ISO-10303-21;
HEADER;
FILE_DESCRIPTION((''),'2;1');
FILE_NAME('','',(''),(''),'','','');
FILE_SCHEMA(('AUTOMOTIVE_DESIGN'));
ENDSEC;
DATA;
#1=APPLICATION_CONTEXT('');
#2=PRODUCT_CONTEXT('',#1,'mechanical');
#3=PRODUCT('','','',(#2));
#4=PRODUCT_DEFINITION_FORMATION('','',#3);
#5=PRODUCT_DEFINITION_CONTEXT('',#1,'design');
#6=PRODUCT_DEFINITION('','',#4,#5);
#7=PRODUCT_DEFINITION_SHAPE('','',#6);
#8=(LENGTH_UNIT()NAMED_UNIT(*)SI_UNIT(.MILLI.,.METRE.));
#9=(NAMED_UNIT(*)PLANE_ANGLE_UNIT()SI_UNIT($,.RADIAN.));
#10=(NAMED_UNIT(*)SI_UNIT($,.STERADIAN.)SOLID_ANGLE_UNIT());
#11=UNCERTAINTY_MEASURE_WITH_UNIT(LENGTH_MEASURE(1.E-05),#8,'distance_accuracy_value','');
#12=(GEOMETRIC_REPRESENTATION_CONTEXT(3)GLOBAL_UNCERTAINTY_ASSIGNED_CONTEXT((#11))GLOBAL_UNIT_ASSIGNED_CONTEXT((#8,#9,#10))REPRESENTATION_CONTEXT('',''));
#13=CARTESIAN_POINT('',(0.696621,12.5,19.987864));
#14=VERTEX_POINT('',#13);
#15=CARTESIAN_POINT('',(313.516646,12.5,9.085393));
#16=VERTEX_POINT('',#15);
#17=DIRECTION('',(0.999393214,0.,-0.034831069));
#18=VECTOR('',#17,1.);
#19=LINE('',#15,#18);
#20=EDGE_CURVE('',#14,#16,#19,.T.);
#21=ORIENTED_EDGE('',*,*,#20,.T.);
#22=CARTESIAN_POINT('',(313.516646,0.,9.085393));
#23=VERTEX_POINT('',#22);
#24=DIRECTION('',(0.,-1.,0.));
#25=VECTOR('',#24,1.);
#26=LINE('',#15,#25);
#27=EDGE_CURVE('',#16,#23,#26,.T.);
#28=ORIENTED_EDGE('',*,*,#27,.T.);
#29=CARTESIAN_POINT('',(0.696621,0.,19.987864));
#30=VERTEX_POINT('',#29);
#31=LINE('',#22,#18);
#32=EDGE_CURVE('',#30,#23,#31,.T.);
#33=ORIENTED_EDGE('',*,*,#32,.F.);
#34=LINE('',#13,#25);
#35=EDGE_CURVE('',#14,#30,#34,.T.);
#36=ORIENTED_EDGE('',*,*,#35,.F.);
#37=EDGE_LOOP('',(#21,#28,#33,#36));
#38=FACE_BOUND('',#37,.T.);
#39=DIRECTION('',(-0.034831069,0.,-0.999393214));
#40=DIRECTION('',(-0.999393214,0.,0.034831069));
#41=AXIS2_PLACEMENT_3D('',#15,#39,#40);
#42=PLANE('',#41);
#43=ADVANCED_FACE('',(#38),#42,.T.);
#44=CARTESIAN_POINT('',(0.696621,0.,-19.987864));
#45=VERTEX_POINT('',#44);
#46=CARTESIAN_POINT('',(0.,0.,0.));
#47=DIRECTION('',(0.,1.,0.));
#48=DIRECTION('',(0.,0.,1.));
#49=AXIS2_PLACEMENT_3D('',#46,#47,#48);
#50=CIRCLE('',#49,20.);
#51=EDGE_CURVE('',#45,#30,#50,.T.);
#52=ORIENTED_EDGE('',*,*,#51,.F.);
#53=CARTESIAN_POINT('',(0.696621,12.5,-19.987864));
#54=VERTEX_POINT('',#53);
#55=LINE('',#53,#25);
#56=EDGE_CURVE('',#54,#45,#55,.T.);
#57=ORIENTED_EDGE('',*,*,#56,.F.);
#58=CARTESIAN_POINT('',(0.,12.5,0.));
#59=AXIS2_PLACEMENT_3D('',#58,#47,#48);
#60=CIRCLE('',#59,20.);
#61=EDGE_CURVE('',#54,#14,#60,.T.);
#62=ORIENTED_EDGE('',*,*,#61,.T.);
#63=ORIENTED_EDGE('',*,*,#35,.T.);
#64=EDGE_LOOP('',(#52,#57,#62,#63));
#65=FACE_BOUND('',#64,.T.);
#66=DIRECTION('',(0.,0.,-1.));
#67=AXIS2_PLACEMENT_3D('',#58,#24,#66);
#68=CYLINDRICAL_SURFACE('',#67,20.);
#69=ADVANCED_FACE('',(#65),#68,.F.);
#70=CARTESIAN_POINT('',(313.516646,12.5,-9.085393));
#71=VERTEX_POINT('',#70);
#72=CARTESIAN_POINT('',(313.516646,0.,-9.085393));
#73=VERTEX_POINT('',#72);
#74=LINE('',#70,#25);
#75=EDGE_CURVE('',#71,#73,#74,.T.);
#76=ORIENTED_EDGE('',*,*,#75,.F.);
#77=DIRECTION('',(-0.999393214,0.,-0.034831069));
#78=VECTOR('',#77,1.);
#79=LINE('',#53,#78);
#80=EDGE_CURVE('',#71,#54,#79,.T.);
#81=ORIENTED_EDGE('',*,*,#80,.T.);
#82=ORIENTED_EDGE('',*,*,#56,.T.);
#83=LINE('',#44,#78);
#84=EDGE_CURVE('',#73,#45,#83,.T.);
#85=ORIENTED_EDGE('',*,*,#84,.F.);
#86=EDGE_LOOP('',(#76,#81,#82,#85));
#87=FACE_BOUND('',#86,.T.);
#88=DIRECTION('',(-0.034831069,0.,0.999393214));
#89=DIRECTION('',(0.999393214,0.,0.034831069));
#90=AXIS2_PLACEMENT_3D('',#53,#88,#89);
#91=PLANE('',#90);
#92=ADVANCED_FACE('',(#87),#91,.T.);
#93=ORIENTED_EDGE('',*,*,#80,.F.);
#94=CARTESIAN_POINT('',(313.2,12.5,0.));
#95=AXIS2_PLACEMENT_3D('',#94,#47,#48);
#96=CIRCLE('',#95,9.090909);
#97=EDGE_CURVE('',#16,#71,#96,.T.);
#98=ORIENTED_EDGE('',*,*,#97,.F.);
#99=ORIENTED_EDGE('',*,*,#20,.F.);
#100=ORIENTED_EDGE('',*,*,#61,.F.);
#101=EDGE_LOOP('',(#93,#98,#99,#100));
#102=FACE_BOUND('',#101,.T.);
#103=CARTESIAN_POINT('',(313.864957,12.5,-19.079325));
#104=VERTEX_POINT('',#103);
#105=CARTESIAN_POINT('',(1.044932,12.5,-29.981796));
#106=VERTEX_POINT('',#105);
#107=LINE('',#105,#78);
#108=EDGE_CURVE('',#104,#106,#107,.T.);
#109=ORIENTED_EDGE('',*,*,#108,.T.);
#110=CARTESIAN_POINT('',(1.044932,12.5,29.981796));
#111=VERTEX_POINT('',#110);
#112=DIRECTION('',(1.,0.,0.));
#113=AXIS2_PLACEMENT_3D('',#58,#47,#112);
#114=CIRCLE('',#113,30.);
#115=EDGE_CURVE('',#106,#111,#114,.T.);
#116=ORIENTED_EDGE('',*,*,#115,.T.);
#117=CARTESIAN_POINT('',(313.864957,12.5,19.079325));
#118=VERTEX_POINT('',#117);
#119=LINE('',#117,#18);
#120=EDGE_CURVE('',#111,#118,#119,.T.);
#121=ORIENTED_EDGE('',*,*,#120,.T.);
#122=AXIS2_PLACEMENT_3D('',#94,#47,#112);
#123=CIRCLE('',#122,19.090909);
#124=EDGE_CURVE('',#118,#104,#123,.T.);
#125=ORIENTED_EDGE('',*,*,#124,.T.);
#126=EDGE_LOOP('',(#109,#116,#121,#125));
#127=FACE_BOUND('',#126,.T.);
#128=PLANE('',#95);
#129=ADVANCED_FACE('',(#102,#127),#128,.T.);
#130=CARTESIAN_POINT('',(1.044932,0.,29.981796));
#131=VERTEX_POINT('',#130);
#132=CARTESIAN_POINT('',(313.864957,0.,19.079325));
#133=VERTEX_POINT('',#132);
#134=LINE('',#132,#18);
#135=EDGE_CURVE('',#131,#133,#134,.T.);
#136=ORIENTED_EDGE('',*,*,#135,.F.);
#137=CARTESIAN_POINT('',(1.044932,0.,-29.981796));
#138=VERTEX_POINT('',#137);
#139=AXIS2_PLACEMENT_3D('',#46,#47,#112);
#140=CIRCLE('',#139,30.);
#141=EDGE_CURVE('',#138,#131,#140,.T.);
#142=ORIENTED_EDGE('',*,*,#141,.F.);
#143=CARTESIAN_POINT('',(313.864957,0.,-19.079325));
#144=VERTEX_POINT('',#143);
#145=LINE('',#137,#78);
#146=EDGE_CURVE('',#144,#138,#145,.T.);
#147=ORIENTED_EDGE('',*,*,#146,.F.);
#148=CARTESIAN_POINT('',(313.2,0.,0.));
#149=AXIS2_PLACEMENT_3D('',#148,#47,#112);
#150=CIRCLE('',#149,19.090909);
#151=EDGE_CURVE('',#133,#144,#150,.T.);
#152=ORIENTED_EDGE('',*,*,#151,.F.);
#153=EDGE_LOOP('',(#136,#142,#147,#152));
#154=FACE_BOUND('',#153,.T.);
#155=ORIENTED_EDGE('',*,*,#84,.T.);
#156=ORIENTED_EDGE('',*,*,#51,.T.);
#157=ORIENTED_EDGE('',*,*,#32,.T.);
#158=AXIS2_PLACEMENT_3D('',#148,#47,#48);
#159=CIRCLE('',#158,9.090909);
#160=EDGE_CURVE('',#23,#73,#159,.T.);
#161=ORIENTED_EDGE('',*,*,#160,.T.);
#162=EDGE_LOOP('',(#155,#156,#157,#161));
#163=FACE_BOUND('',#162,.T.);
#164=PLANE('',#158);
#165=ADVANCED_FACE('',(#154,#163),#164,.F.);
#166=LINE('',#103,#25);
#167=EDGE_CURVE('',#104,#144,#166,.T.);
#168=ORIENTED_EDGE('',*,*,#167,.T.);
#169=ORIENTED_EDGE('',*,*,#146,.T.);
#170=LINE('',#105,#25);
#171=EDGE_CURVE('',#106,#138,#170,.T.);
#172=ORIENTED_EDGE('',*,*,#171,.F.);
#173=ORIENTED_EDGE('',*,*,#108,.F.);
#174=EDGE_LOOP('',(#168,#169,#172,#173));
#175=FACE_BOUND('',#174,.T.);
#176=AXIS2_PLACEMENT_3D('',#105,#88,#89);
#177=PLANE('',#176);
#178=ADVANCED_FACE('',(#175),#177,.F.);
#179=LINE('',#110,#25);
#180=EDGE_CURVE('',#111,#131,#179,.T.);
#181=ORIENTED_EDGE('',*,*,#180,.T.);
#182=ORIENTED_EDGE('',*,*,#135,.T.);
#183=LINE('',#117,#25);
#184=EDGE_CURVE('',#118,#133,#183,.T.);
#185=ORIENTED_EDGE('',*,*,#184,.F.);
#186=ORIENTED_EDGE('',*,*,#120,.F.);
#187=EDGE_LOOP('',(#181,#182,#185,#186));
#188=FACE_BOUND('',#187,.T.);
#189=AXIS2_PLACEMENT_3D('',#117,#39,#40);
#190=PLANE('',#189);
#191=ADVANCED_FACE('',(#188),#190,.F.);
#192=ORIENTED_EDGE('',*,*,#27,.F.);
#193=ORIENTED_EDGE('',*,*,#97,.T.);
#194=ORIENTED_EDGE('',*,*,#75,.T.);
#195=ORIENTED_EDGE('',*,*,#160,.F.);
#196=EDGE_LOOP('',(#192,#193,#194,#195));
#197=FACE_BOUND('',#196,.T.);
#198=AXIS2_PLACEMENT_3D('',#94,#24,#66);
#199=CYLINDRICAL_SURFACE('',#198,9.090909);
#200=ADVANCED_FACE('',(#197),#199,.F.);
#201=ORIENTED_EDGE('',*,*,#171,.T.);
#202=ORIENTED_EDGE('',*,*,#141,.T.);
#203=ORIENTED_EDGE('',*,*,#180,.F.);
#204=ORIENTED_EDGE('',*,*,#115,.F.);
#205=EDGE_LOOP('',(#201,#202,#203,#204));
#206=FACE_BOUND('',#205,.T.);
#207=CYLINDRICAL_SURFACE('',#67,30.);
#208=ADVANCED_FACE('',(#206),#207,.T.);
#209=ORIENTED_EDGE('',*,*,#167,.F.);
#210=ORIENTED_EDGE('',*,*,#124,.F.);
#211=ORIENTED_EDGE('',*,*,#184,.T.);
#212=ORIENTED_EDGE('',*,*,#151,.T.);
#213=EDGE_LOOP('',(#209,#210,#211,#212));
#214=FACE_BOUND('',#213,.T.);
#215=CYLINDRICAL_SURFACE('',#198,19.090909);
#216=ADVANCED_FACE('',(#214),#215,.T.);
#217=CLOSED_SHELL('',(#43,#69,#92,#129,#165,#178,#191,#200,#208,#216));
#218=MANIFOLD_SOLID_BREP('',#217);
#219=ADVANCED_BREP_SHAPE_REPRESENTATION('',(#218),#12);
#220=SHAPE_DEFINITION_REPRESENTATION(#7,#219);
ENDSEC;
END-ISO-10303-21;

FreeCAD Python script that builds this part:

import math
import FreeCAD as App
import Part
import Sketcher
from FreeCAD import Vector
Q = App.Units.Quantity

doc = App.newDocument("Part")
body = doc.addObject("PartDesign::Body", "Body")

# Sketch on XZ plane
sketch1 = body.newObject("Sketcher::SketchObject", "Sketch")
sketch1.AttachmentSupport = (doc.getObject("XZ_Plane"), [""])
sketch1.MapMode = "FlatFace"
sketch1.addGeometry([
    Part.LineSegment(Vector(1, 30, 0), Vector(314, 19, 0)),  # 0
    Part.ArcOfCircle(Part.Circle(Vector(313, 0, 0), Vector(0, 0, 1), 19), math.radians(-88), math.radians(88)),  # 1
    Part.LineSegment(Vector(314, -19, 0), Vector(1, -30, 0)),  # 2
    Part.ArcOfCircle(Part.Circle(Vector(0, 0, 0), Vector(0, 0, 1), 30), math.radians(88), math.radians(272)),  # 3
    Part.LineSegment(Vector(314, 9, 0), Vector(1, 20, 0)),  # 4
    Part.ArcOfCircle(Part.Circle(Vector(0, 0, 0), Vector(0, 0, 1), 20), math.radians(88), math.radians(272)),  # 5
    Part.LineSegment(Vector(1, -20, 0), Vector(314, -9, 0)),  # 6
    Part.ArcOfCircle(Part.Circle(Vector(313, 0, 0), Vector(0, 0, 1), 9), math.radians(-88), math.radians(88)),  # 7
], False)
sketch1.addConstraint([
    Sketcher.Constraint("Tangent", 0, 2, 1, 2),
    Sketcher.Constraint("Tangent", 1, 1, 2, 1),
    Sketcher.Constraint("Tangent", 2, 2, 3, 2),
    Sketcher.Constraint("Tangent", 3, 1, 0, 1),
    Sketcher.Constraint("Tangent", 4, 2, 5, 1),
    Sketcher.Constraint("Tangent", 5, 2, 6, 1),
    Sketcher.Constraint("Tangent", 6, 2, 7, 1),
    Sketcher.Constraint("Tangent", 7, 2, 4, 1),
    Sketcher.Constraint("Coincident", 3, 3, -1, 1),
    Sketcher.Constraint("Coincident", 5, 3, -1, 1),
    Sketcher.Constraint("Coincident", 7, 3, 1, 3),
    Sketcher.Constraint("PointOnObject", 1, 3, -1),
    Sketcher.Constraint("Parallel", 0, 4),
    Sketcher.Constraint("Radius", 3, Q("30 mm")),
    Sketcher.Constraint("Radius", 5, Q("20 mm")),
    Sketcher.Constraint("DistanceX", -1, 1, 1, 3, Q("313.2 mm")),
    Sketcher.Constraint("Radius", 1, Q("19.090909 mm")),
])
pad1 = body.newObject("PartDesign::Pad", "Pad")
pad1.Profile = sketch1
pad1.Length = 12.5
pad1.Reversed = True

doc.recompute()
